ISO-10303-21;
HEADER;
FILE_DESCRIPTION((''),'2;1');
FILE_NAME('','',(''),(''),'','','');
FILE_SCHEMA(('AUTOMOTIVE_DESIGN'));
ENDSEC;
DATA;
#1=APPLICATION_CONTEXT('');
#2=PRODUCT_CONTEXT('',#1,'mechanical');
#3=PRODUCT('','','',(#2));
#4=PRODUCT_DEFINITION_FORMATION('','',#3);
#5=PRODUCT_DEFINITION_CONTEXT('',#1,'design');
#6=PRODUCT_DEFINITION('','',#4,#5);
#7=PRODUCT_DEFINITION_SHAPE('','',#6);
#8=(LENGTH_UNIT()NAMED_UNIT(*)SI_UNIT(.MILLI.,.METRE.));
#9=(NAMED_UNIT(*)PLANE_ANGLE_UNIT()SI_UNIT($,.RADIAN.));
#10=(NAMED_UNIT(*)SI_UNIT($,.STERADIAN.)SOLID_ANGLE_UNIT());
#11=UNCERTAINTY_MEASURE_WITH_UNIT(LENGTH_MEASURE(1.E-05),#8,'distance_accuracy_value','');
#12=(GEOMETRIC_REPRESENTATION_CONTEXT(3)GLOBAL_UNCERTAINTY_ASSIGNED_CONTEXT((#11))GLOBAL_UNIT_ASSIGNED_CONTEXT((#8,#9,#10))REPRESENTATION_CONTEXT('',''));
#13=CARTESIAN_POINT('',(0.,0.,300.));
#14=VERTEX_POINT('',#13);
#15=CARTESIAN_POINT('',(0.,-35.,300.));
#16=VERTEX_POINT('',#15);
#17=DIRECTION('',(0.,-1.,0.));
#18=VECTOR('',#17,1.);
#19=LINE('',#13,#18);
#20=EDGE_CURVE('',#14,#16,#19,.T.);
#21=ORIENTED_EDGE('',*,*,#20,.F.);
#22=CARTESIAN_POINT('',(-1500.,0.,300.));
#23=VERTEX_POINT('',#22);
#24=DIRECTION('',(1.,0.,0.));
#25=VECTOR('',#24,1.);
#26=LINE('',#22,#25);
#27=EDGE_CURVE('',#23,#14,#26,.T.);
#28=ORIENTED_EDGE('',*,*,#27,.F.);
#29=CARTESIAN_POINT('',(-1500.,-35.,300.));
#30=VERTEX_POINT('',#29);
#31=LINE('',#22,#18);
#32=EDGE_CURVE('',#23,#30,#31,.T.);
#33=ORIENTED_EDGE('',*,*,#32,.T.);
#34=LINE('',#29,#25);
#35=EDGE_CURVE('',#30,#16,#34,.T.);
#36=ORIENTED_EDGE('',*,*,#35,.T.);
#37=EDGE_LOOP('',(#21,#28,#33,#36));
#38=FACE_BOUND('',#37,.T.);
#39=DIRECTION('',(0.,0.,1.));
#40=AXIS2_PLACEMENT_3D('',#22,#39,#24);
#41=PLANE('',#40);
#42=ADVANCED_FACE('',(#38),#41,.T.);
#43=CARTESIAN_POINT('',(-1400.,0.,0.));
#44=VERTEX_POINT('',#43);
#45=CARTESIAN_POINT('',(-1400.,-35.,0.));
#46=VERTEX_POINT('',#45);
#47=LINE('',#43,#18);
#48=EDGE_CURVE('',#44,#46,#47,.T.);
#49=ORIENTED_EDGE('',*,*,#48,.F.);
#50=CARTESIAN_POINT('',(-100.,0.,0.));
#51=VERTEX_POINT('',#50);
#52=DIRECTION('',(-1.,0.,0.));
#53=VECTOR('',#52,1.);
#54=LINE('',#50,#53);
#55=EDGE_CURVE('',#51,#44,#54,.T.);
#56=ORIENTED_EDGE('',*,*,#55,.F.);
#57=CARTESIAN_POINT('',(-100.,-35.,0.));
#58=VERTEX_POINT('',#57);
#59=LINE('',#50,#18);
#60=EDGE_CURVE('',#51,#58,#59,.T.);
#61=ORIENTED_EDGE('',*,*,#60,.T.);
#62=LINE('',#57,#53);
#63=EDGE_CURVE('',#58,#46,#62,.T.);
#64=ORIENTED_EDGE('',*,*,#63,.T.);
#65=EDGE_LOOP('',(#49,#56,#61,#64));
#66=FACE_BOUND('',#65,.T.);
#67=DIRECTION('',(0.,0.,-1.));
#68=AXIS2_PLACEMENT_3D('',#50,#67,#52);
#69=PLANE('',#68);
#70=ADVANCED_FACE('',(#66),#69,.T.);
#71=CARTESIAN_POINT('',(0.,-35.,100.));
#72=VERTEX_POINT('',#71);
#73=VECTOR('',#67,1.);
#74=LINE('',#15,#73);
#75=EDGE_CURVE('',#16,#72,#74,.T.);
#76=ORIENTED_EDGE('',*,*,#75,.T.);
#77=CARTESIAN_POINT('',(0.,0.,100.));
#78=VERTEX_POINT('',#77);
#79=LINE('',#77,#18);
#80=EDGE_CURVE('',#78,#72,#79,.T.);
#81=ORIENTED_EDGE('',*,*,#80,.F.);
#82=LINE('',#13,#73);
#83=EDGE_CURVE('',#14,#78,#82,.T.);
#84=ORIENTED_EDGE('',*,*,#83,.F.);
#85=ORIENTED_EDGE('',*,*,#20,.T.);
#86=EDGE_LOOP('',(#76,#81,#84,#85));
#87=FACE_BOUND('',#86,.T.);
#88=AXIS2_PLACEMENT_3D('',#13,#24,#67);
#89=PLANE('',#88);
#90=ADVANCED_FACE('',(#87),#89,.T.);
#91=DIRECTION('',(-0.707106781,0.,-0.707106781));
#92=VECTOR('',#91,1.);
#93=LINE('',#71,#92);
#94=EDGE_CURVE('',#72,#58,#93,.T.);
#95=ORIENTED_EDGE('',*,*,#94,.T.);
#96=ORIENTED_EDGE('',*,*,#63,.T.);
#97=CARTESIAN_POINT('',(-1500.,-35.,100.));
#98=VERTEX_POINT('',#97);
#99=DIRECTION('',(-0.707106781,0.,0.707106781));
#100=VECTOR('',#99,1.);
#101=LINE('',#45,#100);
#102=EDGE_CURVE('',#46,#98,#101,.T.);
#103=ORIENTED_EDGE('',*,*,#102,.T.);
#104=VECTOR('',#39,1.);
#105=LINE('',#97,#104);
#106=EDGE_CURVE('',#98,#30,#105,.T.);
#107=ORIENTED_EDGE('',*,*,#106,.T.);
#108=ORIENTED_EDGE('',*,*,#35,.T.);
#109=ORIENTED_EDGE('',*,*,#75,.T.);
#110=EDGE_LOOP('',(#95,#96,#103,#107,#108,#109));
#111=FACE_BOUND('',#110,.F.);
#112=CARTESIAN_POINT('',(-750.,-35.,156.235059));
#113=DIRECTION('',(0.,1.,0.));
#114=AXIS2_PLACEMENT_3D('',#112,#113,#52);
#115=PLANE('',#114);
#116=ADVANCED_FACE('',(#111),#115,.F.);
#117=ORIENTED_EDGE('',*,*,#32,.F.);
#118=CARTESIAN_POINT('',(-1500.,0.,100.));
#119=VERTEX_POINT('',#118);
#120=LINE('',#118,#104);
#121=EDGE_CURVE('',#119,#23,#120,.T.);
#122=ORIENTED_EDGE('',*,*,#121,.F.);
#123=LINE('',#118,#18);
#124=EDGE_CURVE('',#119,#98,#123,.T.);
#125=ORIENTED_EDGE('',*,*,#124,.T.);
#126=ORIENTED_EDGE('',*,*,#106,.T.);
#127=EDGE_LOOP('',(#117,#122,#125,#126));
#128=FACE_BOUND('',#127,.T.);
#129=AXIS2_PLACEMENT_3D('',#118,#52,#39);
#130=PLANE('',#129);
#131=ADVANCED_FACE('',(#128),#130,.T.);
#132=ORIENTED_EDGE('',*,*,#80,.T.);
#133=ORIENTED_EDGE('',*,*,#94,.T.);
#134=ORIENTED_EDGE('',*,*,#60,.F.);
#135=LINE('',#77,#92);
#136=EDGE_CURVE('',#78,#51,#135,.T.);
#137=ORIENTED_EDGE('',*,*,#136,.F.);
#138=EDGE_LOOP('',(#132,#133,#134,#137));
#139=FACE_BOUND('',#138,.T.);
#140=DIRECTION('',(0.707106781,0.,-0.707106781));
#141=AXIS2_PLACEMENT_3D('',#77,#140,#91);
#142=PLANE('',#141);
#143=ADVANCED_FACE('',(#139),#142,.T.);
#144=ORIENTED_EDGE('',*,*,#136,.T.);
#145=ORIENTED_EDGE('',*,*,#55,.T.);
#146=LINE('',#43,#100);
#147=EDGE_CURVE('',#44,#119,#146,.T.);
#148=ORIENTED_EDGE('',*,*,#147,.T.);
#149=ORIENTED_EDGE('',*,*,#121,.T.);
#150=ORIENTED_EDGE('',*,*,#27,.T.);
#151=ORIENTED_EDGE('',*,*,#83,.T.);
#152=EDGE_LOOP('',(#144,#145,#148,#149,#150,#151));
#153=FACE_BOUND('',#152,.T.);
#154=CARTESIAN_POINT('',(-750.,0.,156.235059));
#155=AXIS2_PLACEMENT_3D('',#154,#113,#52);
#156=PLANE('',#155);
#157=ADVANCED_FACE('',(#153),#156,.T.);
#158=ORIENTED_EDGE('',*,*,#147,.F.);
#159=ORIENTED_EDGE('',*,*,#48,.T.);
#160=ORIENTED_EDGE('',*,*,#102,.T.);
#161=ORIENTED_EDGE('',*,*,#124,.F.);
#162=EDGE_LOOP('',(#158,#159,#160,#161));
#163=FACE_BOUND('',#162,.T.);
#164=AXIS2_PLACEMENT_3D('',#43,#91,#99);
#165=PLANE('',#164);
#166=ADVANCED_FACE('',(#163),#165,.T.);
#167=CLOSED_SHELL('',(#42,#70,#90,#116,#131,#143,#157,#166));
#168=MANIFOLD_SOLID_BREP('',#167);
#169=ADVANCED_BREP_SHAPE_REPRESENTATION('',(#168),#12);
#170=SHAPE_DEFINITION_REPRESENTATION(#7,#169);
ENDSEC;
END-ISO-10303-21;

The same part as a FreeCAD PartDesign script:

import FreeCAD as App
import Part
import Sketcher
from FreeCAD import Vector

doc = App.newDocument("Part")
body = doc.addObject("PartDesign::Body", "Body")

sketch1 = body.newObject("Sketcher::SketchObject", "Sketch")
sketch1.AttachmentSupport = (doc.getObject("XZ_Plane"), [""])
sketch1.MapMode = "FlatFace"
sketch1.addGeometry(Part.LineSegment(Vector(-1400, 0, 0), Vector(-100, 0, 0)), False)
sketch1.addGeometry(Part.LineSegment(Vector(-100, 0, 0), Vector(0, 100, 0)), False)
sketch1.addGeometry(Part.LineSegment(Vector(0, 100, 0), Vector(0, 300, 0)), False)
sketch1.addGeometry(Part.LineSegment(Vector(0, 300, 0), Vector(-1500, 300, 0)), False)
sketch1.addGeometry(Part.LineSegment(Vector(-1500, 300, 0), Vector(-1500, 100, 0)), False)
sketch1.addGeometry(Part.LineSegment(Vector(-1500, 100, 0), Vector(-1400, 0, 0)), False)
sketch1.addConstraint(Sketcher.Constraint("Coincident", 0, 2, 1, 1))
sketch1.addConstraint(Sketcher.Constraint("Coincident", 1, 2, 2, 1))
sketch1.addConstraint(Sketcher.Constraint("Coincident", 2, 2, 3, 1))
sketch1.addConstraint(Sketcher.Constraint("Coincident", 3, 2, 4, 1))
sketch1.addConstraint(Sketcher.Constraint("Coincident", 4, 2, 5, 1))
sketch1.addConstraint(Sketcher.Constraint("Coincident", 5, 2, 0, 1))
sketch1.addConstraint(Sketcher.Constraint("Horizontal", 0))
sketch1.addConstraint(Sketcher.Constraint("Vertical", 2))
sketch1.addConstraint(Sketcher.Constraint("Horizontal", 3))
sketch1.addConstraint(Sketcher.Constraint("Vertical", 4))
sketch1.addConstraint(Sketcher.Constraint("PointOnObject", 0, 2, -1))
sketch1.addConstraint(Sketcher.Constraint("PointOnObject", 1, 2, -2))
sketch1.addConstraint(Sketcher.Constraint("Perpendicular", 1, 5))
sketch1.addConstraint(Sketcher.Constraint("Horizontal", 1, 2, 4, 2))
sketch1.addConstraint(Sketcher.Constraint("Equal", 1, 5))
sketch1.addConstraint(Sketcher.Constraint("DistanceX", 0, 1, 0, 2, 1300.0))
sketch1.addConstraint(Sketcher.Constraint("DistanceX", 3, 2, 3, 1, 1500.0))
sketch1.addConstraint(Sketcher.Constraint("DistanceY", 2, 1, 2, 2, 200.0))
pad1 = body.newObject("PartDesign::Pad", "Pad")
pad1.Profile = sketch1
pad1.Length = 35

doc.recompute()
